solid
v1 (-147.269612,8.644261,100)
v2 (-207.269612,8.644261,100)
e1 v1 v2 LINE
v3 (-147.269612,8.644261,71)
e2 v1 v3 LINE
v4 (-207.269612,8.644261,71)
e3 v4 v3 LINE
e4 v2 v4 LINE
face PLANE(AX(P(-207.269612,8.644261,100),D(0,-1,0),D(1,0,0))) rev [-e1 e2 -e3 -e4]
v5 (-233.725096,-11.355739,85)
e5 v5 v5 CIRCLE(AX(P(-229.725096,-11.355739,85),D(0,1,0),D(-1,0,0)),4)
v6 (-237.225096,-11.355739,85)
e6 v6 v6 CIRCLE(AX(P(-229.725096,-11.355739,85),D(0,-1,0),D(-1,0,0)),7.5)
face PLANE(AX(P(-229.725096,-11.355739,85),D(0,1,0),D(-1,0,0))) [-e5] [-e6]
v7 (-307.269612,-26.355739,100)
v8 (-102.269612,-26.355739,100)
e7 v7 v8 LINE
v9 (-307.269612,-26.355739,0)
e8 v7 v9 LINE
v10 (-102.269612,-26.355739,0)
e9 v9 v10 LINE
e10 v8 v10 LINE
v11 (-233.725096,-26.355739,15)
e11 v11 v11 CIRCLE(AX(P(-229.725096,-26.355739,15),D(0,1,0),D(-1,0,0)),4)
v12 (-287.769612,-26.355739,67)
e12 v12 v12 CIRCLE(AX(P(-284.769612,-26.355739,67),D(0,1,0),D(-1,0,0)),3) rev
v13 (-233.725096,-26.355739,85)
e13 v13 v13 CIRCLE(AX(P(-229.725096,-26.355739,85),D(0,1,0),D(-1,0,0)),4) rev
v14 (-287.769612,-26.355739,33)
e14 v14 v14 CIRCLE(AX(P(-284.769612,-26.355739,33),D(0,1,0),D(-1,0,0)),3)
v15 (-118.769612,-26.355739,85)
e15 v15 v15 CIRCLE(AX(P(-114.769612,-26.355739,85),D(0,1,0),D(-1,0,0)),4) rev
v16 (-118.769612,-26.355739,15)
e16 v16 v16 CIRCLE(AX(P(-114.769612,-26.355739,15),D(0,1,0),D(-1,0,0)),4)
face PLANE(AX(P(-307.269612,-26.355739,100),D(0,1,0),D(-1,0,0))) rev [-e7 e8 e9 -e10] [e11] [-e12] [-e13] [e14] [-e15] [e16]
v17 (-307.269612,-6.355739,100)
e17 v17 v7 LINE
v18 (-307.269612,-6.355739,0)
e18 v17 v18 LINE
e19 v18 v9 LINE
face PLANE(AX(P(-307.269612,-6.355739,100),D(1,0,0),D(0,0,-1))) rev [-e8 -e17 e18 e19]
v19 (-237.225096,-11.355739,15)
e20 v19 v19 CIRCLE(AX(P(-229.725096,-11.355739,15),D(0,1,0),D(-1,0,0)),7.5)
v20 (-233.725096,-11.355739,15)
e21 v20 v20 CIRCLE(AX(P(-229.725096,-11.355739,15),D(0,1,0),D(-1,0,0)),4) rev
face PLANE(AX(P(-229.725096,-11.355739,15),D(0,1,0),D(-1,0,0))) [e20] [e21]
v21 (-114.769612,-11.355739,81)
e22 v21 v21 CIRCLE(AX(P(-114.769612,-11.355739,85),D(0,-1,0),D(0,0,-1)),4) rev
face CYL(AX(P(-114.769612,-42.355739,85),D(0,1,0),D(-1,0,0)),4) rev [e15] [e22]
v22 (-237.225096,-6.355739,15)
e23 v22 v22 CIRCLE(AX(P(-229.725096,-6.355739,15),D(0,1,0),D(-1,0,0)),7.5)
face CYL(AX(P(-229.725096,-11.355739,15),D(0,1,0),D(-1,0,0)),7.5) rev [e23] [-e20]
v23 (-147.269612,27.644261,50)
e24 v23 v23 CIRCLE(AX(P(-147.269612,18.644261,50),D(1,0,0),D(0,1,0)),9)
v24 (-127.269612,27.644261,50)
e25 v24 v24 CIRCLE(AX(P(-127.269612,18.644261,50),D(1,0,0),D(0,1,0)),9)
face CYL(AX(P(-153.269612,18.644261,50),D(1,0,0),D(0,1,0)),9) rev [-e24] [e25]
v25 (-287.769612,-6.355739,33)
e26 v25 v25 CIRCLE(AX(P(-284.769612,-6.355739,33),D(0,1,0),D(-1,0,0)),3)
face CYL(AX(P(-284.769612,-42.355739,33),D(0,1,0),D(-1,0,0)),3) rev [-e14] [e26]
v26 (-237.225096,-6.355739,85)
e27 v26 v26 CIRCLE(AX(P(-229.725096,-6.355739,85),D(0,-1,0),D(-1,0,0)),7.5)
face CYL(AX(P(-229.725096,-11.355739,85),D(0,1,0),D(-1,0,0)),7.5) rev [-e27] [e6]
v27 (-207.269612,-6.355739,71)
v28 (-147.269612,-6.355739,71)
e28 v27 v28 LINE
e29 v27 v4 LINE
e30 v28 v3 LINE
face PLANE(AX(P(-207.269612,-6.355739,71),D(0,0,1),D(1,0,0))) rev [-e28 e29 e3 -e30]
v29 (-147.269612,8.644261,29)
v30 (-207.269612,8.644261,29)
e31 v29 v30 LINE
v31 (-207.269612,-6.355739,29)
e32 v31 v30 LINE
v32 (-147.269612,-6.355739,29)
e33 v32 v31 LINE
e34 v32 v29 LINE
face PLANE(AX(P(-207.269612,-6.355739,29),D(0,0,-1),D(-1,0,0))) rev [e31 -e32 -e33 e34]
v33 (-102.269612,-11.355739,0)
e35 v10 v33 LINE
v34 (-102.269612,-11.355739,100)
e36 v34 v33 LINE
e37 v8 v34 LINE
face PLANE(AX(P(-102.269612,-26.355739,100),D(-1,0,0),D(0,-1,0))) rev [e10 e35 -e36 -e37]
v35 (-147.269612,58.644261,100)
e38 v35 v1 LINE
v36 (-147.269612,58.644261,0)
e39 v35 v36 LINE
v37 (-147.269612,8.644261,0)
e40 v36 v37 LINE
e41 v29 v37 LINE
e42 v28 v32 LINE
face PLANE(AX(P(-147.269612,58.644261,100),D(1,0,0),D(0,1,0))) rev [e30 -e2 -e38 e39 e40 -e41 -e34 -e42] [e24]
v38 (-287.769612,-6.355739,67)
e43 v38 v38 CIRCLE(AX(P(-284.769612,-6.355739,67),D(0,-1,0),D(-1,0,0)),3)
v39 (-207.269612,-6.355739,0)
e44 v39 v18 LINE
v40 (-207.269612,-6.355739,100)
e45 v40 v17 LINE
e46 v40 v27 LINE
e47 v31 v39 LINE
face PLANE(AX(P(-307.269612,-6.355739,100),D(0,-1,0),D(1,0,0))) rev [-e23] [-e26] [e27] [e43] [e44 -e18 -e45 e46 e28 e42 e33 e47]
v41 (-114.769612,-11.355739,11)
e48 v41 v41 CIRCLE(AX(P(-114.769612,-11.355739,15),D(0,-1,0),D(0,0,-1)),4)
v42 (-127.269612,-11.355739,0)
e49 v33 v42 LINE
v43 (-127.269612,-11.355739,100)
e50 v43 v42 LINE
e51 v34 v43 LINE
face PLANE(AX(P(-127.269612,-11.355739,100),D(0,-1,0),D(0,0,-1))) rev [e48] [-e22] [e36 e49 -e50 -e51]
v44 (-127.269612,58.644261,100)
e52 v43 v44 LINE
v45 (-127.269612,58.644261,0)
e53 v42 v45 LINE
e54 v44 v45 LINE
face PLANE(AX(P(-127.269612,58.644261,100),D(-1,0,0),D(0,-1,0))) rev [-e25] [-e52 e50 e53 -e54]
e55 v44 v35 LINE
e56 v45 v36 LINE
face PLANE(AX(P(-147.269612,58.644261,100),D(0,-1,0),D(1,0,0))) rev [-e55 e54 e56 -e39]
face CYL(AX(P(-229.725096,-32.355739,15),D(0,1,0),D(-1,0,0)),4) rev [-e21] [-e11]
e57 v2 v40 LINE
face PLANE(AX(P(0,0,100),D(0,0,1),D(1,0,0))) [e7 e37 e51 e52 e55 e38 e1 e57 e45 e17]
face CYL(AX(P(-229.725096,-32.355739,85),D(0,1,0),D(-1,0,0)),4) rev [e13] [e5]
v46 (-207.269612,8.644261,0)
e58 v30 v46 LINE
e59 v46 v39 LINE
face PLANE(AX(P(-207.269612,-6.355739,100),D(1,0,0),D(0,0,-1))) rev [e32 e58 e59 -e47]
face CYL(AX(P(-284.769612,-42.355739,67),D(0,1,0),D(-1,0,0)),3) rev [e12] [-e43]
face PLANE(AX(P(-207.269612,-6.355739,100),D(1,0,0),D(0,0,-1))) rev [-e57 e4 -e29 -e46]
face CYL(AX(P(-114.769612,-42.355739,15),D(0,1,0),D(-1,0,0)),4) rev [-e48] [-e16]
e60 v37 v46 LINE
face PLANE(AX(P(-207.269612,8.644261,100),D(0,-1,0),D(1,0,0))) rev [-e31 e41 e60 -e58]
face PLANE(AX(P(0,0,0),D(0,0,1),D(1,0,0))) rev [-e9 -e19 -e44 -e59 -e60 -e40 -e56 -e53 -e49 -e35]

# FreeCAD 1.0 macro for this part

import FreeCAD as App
import Part
import Sketcher
from FreeCAD import Vector
Q = App.Units.Quantity


def add_polygon(sketch, points):
    """Adds a closed chain of lines whose ends are joined by coincident constraints."""
    first, n = sketch.GeometryCount, len(points)
    for a, b in zip(points, points[1:] + points[:1]):
        sketch.addGeometry(Part.LineSegment(App.Vector(*a, 0), App.Vector(*b, 0)), False)
    for i in range(n):
        sketch.addConstraint(Sketcher.Constraint("Coincident", first + i, 2, first + (i + 1) % n, 1))

doc = App.newDocument("Part")
body = doc.addObject("PartDesign::Body", "Body")

sketch1 = doc.addObject("Sketcher::SketchObject", "Sketch")
body.addObject(sketch1)
sketch1.AttachmentSupport = (doc.XY_Plane, [""])
sketch1.MapMode = "FlatFace"
add_polygon(sketch1, [(-307, -26), (-102, -26), (-102, -11), (-127, -11), (-127, 59), (-147, 59), (-147, 9), (-207, 9), (-207, -6), (-307, -6)])
sketch1.addConstraint(Sketcher.Constraint("Horizontal", 0))
sketch1.addConstraint(Sketcher.Constraint("Vertical", 1))
sketch1.addConstraint(Sketcher.Constraint("Horizontal", 2))
sketch1.addConstraint(Sketcher.Constraint("Vertical", 3))
sketch1.addConstraint(Sketcher.Constraint("Horizontal", 4))
sketch1.addConstraint(Sketcher.Constraint("Vertical", 5))
sketch1.addConstraint(Sketcher.Constraint("Horizontal", 6))
sketch1.addConstraint(Sketcher.Constraint("Vertical", 7))
sketch1.addConstraint(Sketcher.Constraint("Horizontal", 8))
sketch1.addConstraint(Sketcher.Constraint("Vertical", 9))
sketch1.addConstraint(Sketcher.Constraint("Equal", 1, 7))
sketch1.addConstraint(Sketcher.Constraint("Equal", 4, 9))
sketch1.addConstraint(Sketcher.Constraint("DistanceX", 0, 1, 0, 2, Q("205 mm")))
sketch1.addConstraint(Sketcher.Constraint("DistanceX", 2, 2, 2, 1, Q("25 mm")))
sketch1.addConstraint(Sketcher.Constraint("DistanceX", 4, 2, 4, 1, Q("20 mm")))
sketch1.addConstraint(Sketcher.Constraint("DistanceX", 6, 2, 6, 1, Q("60 mm")))
sketch1.addConstraint(Sketcher.Constraint("DistanceY", 1, 1, 1, 2, Q("15 mm")))
sketch1.addConstraint(Sketcher.Constraint("DistanceY", 3, 1, 3, 2, Q("70 mm")))
sketch1.addConstraint(Sketcher.Constraint("DistanceY", 0, 2, -1, 1, Q("26.355739 mm")))
sketch1.addConstraint(Sketcher.Constraint("DistanceX", 0, 2, -1, 1, Q("102.269612 mm")))
pad1 = doc.addObject("PartDesign::Pad", "Pad")
body.addObject(pad1)
pad1.Profile = sketch1
pad1.Length = 100

sketch2 = doc.addObject("Sketcher::SketchObject", "Sketch001")
body.addObject(sketch2)
sketch2.AttachmentSupport = (doc.XZ_Plane, [""])
sketch2.MapMode = "FlatFace"
sketch2.AttachmentOffset = App.Placement(Vector(0, 0, -8.644261), App.Rotation())
add_polygon(sketch2, [(-207, 29), (-207, 71), (-147, 71), (-147, 29)])
sketch2.addConstraint(Sketcher.Constraint("Vertical", 0))
sketch2.addConstraint(Sketcher.Constraint("Horizontal", 1))
sketch2.addConstraint(Sketcher.Constraint("Vertical", 2))
sketch2.addConstraint(Sketcher.Constraint("Horizontal", 3))
sketch2.addConstraint(Sketcher.Constraint("DistanceX", 1, 1, 1, 2, Q("60 mm")))
sketch2.addConstraint(Sketcher.Constraint("DistanceY", 0, 1, 0, 2, Q("42 mm")))
sketch2.addConstraint(Sketcher.Constraint("DistanceY", -1, 1, 0, 2, Q("71 mm")))
sketch2.addConstraint(Sketcher.Constraint("DistanceX", 0, 2, -1, 1, Q("207.269612 mm")))
pocket1 = doc.addObject("PartDesign::Pocket", "Pocket")
body.addObject(pocket1)
pocket1.Profile = sketch2
pocket1.Length = 15
pocket1.Reversed = True

sketch3 = doc.addObject("Sketcher::SketchObject", "Sketch002")
body.addObject(sketch3)
sketch3.AttachmentSupport = (doc.XZ_Plane, [""])
sketch3.MapMode = "FlatFace"
sketch3.AttachmentOffset = App.Placement(Vector(0, 0, 6.355739), App.Rotation())
sketch3.addGeometry(Part.Circle(Vector(-284.8, 33, 0), Vector(0, 0, 1), 3), False)
sketch3.addGeometry(Part.Circle(Vector(-114.8, 15, 0), Vector(0, 0, 1), 4), False)
sketch3.addConstraint(Sketcher.Constraint("Diameter", 0, Q("6 mm")))
sketch3.addConstraint(Sketcher.Constraint("Diameter", 1, Q("8 mm")))
sketch3.addConstraint(Sketcher.Constraint("DistanceY", -1, 1, 0, 3, Q("33 mm")))
sketch3.addConstraint(Sketcher.Constraint("DistanceY", -1, 1, 1, 3, Q("15 mm")))
sketch3.addConstraint(Sketcher.Constraint("DistanceX", 0, 3, 1, 3, Q("170 mm")))
sketch3.addConstraint(Sketcher.Constraint("DistanceX", 0, 3, -1, 1, Q("284.769612 mm")))
pocket2 = doc.addObject("PartDesign::Pocket", "Pocket001")
body.addObject(pocket2)
pocket2.Profile = sketch3
pocket2.Length = 36
pocket2.Reversed = True
doc.recompute()

datumplane = doc.addObject("PartDesign::Plane", "DatumPlane")
body.addObject(datumplane)
datumplane.AttachmentSupport = (doc.XY_Plane, [""])
datumplane.MapMode = "FlatFace"
datumplane.AttachmentOffset = App.Placement(Vector(0, 0, 50), App.Rotation())
mirrored = doc.addObject("PartDesign::Mirrored", "Mirrored")
body.addObject(mirrored)
mirrored.Originals = [pocket2]
mirrored.MirrorPlane = (datumplane, [""])
body.Tip = mirrored

sketch4 = doc.addObject("Sketcher::SketchObject", "Sketch003")
body.addObject(sketch4)
sketch4.AttachmentSupport = (doc.YZ_Plane, [""])
sketch4.MapMode = "FlatFace"
sketch4.AttachmentOffset = App.Placement(Vector(0, 0, -127.269612), App.Rotation())
sketch4.addGeometry(Part.Circle(Vector(19, 50, 0), Vector(0, 0, 1), 9), False)
sketch4.addConstraint(Sketcher.Constraint("Diameter", 0, Q("18 mm")))
sketch4.addConstraint(Sketcher.Constraint("DistanceY", -1, 1, 0, 3, Q("50 mm")))
sketch4.addConstraint(Sketcher.Constraint("DistanceX", -1, 1, 0, 3, Q("18.644261 mm")))
pocket3 = doc.addObject("PartDesign::Pocket", "Pocket002")
body.addObject(pocket3)
pocket3.Profile = sketch4
pocket3.Length = 26

sketch5 = doc.addObject("Sketcher::SketchObject", "Sketch004")
body.addObject(sketch5)
sketch5.AttachmentSupport = (doc.XZ_Plane, [""])
sketch5.MapMode = "FlatFace"
sketch5.AttachmentOffset = App.Placement(Vector(0, 0, 6.355739), App.Rotation())
sketch5.addGeometry(Part.Circle(Vector(-229.7, 15, 0), Vector(0, 0, 1), 4), False)
sketch5.addConstraint(Sketcher.Constraint("Diameter", 0, Q("8 mm")))
sketch5.addConstraint(Sketcher.Constraint("DistanceY", -1, 1, 0, 3, Q("15 mm")))
sketch5.addConstraint(Sketcher.Constraint("DistanceX", 0, 3, -1, 1, Q("229.725096 mm")))
pocket4 = doc.addObject("PartDesign::Pocket", "Pocket003")
body.addObject(pocket4)
pocket4.Profile = sketch5
pocket4.Length = 26
pocket4.Reversed = True

sketch6 = doc.addObject("Sketcher::SketchObject", "Sketch005")
body.addObject(sketch6)
sketch6.AttachmentSupport = (doc.XZ_Plane, [""])
sketch6.MapMode = "FlatFace"
sketch6.AttachmentOffset = App.Placement(Vector(0, 0, 6.355739), App.Rotation())
sketch6.addGeometry(Part.Circle(Vector(-230, 15, 0), Vector(0, 0, 1), 8), False)
sketch6.addConstraint(Sketcher.Constraint("Diameter", 0, Q("15 mm")))
sketch6.addConstraint(Sketcher.Constraint("DistanceY", -1, 1, 0, 3, Q("15 mm")))
sketch6.addConstraint(Sketcher.Constraint("DistanceX", 0, 3, -1, 1, Q("229.725096 mm")))
pocket5 = doc.addObject("PartDesign::Pocket", "Pocket004")
body.addObject(pocket5)
pocket5.Profile = sketch6
pocket5.Length = 5
pocket5.Reversed = True
doc.recompute()

datumplane2 = doc.addObject("PartDesign::Plane", "DatumPlane001")
body.addObject(datumplane2)
datumplane2.AttachmentSupport = (doc.XY_Plane, [""])
datumplane2.MapMode = "FlatFace"
datumplane2.AttachmentOffset = App.Placement(Vector(0, 0, 50), App.Rotation())
mirrored2 = doc.addObject("PartDesign::Mirrored", "Mirrored001")
body.addObject(mirrored2)
mirrored2.Originals = [pocket4, pocket5]
mirrored2.MirrorPlane = (datumplane2, [""])
body.Tip = mirrored2

doc.recompute()
